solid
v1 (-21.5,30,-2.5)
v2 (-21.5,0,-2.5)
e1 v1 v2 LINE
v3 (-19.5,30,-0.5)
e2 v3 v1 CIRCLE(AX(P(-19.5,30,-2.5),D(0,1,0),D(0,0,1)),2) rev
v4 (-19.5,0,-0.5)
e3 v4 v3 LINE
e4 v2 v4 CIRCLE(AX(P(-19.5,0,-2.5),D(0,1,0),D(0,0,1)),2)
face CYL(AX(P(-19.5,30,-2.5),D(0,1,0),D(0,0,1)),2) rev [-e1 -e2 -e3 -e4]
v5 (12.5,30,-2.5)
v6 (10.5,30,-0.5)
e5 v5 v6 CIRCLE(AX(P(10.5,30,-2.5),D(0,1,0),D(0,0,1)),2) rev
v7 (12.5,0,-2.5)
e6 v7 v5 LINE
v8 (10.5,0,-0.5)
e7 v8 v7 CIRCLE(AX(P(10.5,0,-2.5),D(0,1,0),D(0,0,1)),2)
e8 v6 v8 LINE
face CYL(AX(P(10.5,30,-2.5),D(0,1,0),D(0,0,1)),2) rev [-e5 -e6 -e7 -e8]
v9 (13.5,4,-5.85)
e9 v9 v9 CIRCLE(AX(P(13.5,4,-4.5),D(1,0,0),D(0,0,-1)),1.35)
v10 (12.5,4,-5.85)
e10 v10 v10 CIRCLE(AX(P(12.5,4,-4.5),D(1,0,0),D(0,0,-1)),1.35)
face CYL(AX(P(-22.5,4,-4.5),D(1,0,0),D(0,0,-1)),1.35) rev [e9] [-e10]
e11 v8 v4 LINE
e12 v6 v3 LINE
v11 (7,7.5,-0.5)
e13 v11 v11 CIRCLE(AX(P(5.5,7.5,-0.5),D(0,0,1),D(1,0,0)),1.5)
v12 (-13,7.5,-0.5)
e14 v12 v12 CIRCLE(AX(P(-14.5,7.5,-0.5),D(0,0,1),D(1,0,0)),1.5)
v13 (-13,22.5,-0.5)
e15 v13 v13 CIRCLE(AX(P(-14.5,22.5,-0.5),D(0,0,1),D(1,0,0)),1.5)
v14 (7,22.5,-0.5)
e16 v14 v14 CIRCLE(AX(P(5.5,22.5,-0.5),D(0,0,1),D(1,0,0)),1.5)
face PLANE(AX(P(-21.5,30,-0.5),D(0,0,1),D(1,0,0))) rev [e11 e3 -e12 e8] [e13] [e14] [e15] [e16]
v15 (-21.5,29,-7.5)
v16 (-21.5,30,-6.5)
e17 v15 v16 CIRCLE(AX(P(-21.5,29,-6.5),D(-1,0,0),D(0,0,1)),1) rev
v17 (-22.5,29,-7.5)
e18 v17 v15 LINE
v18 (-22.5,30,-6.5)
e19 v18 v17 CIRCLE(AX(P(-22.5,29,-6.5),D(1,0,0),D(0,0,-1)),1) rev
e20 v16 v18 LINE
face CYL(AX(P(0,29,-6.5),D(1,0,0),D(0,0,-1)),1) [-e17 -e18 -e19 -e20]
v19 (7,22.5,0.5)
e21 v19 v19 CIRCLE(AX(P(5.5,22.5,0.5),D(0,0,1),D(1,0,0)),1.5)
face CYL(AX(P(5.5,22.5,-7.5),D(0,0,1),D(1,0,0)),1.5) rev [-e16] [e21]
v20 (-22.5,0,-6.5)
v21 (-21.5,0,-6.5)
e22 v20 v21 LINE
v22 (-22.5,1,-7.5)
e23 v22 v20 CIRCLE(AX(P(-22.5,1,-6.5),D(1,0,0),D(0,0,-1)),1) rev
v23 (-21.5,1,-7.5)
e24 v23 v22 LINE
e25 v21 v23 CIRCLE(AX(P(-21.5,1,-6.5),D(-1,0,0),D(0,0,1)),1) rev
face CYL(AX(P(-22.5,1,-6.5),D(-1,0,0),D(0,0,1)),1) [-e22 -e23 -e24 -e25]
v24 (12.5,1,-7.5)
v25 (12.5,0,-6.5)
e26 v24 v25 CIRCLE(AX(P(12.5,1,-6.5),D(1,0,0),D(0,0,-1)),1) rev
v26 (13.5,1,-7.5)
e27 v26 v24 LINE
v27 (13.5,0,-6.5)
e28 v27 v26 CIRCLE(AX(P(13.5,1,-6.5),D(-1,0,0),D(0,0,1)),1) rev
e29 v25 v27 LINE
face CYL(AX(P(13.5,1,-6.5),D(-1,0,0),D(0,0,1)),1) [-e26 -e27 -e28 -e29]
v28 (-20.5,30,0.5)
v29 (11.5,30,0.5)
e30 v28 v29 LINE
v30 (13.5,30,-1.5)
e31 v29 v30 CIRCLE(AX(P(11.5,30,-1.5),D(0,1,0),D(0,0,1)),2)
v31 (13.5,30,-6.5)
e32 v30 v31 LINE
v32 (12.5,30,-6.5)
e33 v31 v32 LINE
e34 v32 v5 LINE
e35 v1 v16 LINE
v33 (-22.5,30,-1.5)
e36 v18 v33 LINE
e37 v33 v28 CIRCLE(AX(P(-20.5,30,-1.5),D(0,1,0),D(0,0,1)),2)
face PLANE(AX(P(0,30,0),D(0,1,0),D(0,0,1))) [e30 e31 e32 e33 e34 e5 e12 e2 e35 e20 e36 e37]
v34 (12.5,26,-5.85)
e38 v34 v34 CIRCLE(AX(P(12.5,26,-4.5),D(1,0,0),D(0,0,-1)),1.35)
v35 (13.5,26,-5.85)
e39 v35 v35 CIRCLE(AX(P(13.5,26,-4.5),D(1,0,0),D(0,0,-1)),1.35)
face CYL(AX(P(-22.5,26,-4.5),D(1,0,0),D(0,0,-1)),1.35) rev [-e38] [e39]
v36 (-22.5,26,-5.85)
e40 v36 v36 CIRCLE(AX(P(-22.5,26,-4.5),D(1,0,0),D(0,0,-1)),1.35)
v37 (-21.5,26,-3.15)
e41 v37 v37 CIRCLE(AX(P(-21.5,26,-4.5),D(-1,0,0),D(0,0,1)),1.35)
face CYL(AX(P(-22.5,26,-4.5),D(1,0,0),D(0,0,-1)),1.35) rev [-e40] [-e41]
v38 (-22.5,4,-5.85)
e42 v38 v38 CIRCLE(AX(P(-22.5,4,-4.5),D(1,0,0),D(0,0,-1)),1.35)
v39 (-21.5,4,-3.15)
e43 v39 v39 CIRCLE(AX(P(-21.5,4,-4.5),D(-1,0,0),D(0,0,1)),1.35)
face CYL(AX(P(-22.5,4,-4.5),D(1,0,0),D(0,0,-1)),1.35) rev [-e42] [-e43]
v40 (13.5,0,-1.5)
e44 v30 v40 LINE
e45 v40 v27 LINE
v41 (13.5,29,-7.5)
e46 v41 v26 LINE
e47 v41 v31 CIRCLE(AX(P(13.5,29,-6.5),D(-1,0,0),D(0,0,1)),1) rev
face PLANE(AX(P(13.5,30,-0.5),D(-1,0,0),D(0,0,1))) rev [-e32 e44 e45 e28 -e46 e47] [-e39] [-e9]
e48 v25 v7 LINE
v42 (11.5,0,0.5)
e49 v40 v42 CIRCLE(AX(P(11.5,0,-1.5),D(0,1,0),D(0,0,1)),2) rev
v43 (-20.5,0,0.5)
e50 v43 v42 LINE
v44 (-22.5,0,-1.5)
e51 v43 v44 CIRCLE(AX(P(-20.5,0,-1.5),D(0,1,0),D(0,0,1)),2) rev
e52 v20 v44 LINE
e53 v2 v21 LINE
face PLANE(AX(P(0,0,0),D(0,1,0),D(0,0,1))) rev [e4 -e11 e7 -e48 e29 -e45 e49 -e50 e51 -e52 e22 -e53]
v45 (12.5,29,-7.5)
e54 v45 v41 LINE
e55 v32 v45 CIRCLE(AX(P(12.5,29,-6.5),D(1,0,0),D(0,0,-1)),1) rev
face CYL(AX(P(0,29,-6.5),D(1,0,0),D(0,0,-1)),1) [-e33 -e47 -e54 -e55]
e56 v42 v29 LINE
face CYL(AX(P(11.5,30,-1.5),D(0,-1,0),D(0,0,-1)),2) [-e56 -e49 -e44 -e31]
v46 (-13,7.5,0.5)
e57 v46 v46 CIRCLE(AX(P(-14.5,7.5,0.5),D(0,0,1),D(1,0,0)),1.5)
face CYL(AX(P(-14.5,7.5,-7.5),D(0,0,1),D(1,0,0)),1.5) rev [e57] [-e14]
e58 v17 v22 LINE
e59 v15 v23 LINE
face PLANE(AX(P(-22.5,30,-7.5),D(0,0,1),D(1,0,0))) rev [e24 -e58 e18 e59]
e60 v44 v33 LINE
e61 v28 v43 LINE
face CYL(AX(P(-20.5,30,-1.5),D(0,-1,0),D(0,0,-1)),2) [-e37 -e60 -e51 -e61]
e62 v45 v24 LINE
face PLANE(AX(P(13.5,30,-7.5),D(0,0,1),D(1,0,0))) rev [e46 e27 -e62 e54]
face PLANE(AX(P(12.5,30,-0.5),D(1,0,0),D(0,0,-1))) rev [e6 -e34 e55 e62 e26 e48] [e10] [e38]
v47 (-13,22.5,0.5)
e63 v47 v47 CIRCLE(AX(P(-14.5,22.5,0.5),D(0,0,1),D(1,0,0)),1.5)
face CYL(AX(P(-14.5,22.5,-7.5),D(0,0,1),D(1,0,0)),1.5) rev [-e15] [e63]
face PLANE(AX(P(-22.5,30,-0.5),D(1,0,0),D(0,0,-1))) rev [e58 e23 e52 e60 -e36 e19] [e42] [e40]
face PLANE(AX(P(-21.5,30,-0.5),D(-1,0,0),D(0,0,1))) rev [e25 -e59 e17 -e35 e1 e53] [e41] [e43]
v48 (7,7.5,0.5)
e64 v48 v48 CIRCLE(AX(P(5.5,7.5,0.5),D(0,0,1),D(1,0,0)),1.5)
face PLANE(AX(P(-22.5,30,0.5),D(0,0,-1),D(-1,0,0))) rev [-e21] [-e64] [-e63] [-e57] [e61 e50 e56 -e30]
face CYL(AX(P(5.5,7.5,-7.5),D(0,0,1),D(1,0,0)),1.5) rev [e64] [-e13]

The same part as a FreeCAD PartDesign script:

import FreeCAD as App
import Part
import Sketcher


def edges_at(feature, points):
    """Names of the edges that pass closest to the given points."""
    edges = feature.Shape.Edges
    near = lambda p: min(range(len(edges)), key=lambda i: edges[i].distToShape(Part.Vertex(*p))[0])
    return sorted({f"Edge{near(p) + 1}" for p in points})


def add_polygon(sketch, points):
    """Adds a closed chain of lines whose ends are joined by coincident constraints."""
    first, n = sketch.GeometryCount, len(points)
    for a, b in zip(points, points[1:] + points[:1]):
        sketch.addGeometry(Part.LineSegment(App.Vector(*a, 0), App.Vector(*b, 0)), False)
    for i in range(n):
        sketch.addConstraint(Sketcher.Constraint("Coincident", first + i, 2, first + (i + 1) % n, 1))

doc = App.newDocument("Part")
body = doc.addObject("PartDesign::Body", "Body")

# Sketch on XZ plane
sketch1 = body.newObject("Sketcher::SketchObject", "Sketch")
sketch1.AttachmentSupport = (doc.getObject("XZ_Plane"), [""])
sketch1.MapMode = "FlatFace"
add_polygon(sketch1, [(12.5, -0.5), (-21.5, -0.5), (-21.5, -7.5), (-22.5, -7.5), (-22.5, 0.5), (13.5, 0.5), (13.5, -7.5), (12.5, -7.5)])  # lines 0-7
sketch1.addConstraint([
    Sketcher.Constraint("Horizontal", 0),
    Sketcher.Constraint("Vertical", 1),
    Sketcher.Constraint("Horizontal", 2),
    Sketcher.Constraint("Vertical", 3),
    Sketcher.Constraint("Horizontal", 4),
    Sketcher.Constraint("Vertical", 5),
    Sketcher.Constraint("Horizontal", 6),
    Sketcher.Constraint("Vertical", 7),
    Sketcher.Constraint("Horizontal", 2, 2, 5, 2),
    Sketcher.Constraint("Equal", 2, 6),
    Sketcher.Constraint("DistanceX", 0, 2, 0, 1, 34.0),
    Sketcher.Constraint("DistanceX", 2, 2, 2, 1, 1.0),
    Sketcher.Constraint("DistanceY", 1, 2, 1, 1, 7.0),
    Sketcher.Constraint("DistanceY", 3, 1, 3, 2, 8.0),
    Sketcher.Constraint("DistanceX", 0, 2, -1, 1, 21.5),
    Sketcher.Constraint("DistanceY", 0, 2, -1, 1, 0.5),
])
pad1 = body.newObject("PartDesign::Pad", "Pad")
pad1.Profile = sketch1
pad1.Length = 30
pad1.Reversed = True
doc.recompute()

fillet = body.newObject("PartDesign::Fillet", "Fillet")
fillet.Base = (pad1, edges_at(pad1, [
    (13.5, 15, 0.5),
    (-22.5, 15, 0.5),
    (-21.5, 15, -0.5),
    (12.5, 15, -0.5),
]))
fillet.Radius = 2

# Sketch on XY plane
sketch2 = body.newObject("Sketcher::SketchObject", "Sketch001")
sketch2.AttachmentSupport = (doc.getObject("XY_Plane"), [""])
sketch2.MapMode = "FlatFace"
sketch2.AttachmentOffset = App.Placement(App.Vector(0, 0, 0.5), App.Rotation())
sketch2.addGeometry([
    Part.Circle(App.Vector(-14.5, 22.5, 0), App.Vector(0, 0, 1), 1.5),
    Part.Circle(App.Vector(5.5, 22.5, 0), App.Vector(0, 0, 1), 1.5),
    Part.Circle(App.Vector(-14.5, 7.5, 0), App.Vector(0, 0, 1), 1.5),
    Part.Circle(App.Vector(5.5, 7.5, 0), App.Vector(0, 0, 1), 1.5),
], False)
sketch2.addConstraint([
    Sketcher.Constraint("Equal", 0, 1),
    Sketcher.Constraint("Equal", 1, 2),
    Sketcher.Constraint("Equal", 2, 3),
    Sketcher.Constraint("Horizontal", 0, 3, 1, 3),
    Sketcher.Constraint("Horizontal", 2, 3, 3, 3),
    Sketcher.Constraint("Vertical", 0, 3, 2, 3),
    Sketcher.Constraint("Vertical", 1, 3, 3, 3),
    Sketcher.Constraint("Diameter", 0, 3.0),
    Sketcher.Constraint("DistanceX", 0, 3, 1, 3, 20.0),
    Sketcher.Constraint("DistanceY", 2, 3, 0, 3, 15.0),
    Sketcher.Constraint("DistanceX", 0, 3, -1, 1, 14.5),
    Sketcher.Constraint("DistanceY", -1, 1, 0, 3, 22.5),
])
pocket1 = body.newObject("PartDesign::Pocket", "Pocket")
pocket1.Profile = sketch2
pocket1.Type = "ThroughAll"

# Sketch on YZ plane
sketch3 = body.newObject("Sketcher::SketchObject", "Sketch002")
sketch3.AttachmentSupport = (doc.getObject("YZ_Plane"), [""])
sketch3.MapMode = "FlatFace"
sketch3.AttachmentOffset = App.Placement(App.Vector(0, 0, 13.5), App.Rotation())
sketch3.addGeometry([
    Part.Circle(App.Vector(26, -4.5, 0), App.Vector(0, 0, 1), 1.4),
    Part.Circle(App.Vector(4, -4.5, 0), App.Vector(0, 0, 1), 1.4),
], False)
sketch3.addConstraint([
    Sketcher.Constraint("Equal", 0, 1),
    Sketcher.Constraint("Horizontal", 0, 3, 1, 3),
    Sketcher.Constraint("Diameter", 0, 2.7),
    Sketcher.Constraint("DistanceX", -1, 1, 0, 3, 26.0),
    Sketcher.Constraint("DistanceX", -1, 1, 1, 3, 4.0),
    Sketcher.Constraint("DistanceY", 0, 3, -1, 1, 4.5),
])
pocket2 = body.newObject("PartDesign::Pocket", "Pocket001")
pocket2.Profile = sketch3
pocket2.Type = "ThroughAll"
doc.recompute()

fillet2 = body.newObject("PartDesign::Fillet", "Fillet001")
fillet2.Base = (pocket2, edges_at(pocket2, [
    (13, 30, -7.5),
    (-22, 0, -7.5),
    (13, 0, -7.5),
    (-22, 30, -7.5),
]))
fillet2.Radius = 1

doc.recompute()
